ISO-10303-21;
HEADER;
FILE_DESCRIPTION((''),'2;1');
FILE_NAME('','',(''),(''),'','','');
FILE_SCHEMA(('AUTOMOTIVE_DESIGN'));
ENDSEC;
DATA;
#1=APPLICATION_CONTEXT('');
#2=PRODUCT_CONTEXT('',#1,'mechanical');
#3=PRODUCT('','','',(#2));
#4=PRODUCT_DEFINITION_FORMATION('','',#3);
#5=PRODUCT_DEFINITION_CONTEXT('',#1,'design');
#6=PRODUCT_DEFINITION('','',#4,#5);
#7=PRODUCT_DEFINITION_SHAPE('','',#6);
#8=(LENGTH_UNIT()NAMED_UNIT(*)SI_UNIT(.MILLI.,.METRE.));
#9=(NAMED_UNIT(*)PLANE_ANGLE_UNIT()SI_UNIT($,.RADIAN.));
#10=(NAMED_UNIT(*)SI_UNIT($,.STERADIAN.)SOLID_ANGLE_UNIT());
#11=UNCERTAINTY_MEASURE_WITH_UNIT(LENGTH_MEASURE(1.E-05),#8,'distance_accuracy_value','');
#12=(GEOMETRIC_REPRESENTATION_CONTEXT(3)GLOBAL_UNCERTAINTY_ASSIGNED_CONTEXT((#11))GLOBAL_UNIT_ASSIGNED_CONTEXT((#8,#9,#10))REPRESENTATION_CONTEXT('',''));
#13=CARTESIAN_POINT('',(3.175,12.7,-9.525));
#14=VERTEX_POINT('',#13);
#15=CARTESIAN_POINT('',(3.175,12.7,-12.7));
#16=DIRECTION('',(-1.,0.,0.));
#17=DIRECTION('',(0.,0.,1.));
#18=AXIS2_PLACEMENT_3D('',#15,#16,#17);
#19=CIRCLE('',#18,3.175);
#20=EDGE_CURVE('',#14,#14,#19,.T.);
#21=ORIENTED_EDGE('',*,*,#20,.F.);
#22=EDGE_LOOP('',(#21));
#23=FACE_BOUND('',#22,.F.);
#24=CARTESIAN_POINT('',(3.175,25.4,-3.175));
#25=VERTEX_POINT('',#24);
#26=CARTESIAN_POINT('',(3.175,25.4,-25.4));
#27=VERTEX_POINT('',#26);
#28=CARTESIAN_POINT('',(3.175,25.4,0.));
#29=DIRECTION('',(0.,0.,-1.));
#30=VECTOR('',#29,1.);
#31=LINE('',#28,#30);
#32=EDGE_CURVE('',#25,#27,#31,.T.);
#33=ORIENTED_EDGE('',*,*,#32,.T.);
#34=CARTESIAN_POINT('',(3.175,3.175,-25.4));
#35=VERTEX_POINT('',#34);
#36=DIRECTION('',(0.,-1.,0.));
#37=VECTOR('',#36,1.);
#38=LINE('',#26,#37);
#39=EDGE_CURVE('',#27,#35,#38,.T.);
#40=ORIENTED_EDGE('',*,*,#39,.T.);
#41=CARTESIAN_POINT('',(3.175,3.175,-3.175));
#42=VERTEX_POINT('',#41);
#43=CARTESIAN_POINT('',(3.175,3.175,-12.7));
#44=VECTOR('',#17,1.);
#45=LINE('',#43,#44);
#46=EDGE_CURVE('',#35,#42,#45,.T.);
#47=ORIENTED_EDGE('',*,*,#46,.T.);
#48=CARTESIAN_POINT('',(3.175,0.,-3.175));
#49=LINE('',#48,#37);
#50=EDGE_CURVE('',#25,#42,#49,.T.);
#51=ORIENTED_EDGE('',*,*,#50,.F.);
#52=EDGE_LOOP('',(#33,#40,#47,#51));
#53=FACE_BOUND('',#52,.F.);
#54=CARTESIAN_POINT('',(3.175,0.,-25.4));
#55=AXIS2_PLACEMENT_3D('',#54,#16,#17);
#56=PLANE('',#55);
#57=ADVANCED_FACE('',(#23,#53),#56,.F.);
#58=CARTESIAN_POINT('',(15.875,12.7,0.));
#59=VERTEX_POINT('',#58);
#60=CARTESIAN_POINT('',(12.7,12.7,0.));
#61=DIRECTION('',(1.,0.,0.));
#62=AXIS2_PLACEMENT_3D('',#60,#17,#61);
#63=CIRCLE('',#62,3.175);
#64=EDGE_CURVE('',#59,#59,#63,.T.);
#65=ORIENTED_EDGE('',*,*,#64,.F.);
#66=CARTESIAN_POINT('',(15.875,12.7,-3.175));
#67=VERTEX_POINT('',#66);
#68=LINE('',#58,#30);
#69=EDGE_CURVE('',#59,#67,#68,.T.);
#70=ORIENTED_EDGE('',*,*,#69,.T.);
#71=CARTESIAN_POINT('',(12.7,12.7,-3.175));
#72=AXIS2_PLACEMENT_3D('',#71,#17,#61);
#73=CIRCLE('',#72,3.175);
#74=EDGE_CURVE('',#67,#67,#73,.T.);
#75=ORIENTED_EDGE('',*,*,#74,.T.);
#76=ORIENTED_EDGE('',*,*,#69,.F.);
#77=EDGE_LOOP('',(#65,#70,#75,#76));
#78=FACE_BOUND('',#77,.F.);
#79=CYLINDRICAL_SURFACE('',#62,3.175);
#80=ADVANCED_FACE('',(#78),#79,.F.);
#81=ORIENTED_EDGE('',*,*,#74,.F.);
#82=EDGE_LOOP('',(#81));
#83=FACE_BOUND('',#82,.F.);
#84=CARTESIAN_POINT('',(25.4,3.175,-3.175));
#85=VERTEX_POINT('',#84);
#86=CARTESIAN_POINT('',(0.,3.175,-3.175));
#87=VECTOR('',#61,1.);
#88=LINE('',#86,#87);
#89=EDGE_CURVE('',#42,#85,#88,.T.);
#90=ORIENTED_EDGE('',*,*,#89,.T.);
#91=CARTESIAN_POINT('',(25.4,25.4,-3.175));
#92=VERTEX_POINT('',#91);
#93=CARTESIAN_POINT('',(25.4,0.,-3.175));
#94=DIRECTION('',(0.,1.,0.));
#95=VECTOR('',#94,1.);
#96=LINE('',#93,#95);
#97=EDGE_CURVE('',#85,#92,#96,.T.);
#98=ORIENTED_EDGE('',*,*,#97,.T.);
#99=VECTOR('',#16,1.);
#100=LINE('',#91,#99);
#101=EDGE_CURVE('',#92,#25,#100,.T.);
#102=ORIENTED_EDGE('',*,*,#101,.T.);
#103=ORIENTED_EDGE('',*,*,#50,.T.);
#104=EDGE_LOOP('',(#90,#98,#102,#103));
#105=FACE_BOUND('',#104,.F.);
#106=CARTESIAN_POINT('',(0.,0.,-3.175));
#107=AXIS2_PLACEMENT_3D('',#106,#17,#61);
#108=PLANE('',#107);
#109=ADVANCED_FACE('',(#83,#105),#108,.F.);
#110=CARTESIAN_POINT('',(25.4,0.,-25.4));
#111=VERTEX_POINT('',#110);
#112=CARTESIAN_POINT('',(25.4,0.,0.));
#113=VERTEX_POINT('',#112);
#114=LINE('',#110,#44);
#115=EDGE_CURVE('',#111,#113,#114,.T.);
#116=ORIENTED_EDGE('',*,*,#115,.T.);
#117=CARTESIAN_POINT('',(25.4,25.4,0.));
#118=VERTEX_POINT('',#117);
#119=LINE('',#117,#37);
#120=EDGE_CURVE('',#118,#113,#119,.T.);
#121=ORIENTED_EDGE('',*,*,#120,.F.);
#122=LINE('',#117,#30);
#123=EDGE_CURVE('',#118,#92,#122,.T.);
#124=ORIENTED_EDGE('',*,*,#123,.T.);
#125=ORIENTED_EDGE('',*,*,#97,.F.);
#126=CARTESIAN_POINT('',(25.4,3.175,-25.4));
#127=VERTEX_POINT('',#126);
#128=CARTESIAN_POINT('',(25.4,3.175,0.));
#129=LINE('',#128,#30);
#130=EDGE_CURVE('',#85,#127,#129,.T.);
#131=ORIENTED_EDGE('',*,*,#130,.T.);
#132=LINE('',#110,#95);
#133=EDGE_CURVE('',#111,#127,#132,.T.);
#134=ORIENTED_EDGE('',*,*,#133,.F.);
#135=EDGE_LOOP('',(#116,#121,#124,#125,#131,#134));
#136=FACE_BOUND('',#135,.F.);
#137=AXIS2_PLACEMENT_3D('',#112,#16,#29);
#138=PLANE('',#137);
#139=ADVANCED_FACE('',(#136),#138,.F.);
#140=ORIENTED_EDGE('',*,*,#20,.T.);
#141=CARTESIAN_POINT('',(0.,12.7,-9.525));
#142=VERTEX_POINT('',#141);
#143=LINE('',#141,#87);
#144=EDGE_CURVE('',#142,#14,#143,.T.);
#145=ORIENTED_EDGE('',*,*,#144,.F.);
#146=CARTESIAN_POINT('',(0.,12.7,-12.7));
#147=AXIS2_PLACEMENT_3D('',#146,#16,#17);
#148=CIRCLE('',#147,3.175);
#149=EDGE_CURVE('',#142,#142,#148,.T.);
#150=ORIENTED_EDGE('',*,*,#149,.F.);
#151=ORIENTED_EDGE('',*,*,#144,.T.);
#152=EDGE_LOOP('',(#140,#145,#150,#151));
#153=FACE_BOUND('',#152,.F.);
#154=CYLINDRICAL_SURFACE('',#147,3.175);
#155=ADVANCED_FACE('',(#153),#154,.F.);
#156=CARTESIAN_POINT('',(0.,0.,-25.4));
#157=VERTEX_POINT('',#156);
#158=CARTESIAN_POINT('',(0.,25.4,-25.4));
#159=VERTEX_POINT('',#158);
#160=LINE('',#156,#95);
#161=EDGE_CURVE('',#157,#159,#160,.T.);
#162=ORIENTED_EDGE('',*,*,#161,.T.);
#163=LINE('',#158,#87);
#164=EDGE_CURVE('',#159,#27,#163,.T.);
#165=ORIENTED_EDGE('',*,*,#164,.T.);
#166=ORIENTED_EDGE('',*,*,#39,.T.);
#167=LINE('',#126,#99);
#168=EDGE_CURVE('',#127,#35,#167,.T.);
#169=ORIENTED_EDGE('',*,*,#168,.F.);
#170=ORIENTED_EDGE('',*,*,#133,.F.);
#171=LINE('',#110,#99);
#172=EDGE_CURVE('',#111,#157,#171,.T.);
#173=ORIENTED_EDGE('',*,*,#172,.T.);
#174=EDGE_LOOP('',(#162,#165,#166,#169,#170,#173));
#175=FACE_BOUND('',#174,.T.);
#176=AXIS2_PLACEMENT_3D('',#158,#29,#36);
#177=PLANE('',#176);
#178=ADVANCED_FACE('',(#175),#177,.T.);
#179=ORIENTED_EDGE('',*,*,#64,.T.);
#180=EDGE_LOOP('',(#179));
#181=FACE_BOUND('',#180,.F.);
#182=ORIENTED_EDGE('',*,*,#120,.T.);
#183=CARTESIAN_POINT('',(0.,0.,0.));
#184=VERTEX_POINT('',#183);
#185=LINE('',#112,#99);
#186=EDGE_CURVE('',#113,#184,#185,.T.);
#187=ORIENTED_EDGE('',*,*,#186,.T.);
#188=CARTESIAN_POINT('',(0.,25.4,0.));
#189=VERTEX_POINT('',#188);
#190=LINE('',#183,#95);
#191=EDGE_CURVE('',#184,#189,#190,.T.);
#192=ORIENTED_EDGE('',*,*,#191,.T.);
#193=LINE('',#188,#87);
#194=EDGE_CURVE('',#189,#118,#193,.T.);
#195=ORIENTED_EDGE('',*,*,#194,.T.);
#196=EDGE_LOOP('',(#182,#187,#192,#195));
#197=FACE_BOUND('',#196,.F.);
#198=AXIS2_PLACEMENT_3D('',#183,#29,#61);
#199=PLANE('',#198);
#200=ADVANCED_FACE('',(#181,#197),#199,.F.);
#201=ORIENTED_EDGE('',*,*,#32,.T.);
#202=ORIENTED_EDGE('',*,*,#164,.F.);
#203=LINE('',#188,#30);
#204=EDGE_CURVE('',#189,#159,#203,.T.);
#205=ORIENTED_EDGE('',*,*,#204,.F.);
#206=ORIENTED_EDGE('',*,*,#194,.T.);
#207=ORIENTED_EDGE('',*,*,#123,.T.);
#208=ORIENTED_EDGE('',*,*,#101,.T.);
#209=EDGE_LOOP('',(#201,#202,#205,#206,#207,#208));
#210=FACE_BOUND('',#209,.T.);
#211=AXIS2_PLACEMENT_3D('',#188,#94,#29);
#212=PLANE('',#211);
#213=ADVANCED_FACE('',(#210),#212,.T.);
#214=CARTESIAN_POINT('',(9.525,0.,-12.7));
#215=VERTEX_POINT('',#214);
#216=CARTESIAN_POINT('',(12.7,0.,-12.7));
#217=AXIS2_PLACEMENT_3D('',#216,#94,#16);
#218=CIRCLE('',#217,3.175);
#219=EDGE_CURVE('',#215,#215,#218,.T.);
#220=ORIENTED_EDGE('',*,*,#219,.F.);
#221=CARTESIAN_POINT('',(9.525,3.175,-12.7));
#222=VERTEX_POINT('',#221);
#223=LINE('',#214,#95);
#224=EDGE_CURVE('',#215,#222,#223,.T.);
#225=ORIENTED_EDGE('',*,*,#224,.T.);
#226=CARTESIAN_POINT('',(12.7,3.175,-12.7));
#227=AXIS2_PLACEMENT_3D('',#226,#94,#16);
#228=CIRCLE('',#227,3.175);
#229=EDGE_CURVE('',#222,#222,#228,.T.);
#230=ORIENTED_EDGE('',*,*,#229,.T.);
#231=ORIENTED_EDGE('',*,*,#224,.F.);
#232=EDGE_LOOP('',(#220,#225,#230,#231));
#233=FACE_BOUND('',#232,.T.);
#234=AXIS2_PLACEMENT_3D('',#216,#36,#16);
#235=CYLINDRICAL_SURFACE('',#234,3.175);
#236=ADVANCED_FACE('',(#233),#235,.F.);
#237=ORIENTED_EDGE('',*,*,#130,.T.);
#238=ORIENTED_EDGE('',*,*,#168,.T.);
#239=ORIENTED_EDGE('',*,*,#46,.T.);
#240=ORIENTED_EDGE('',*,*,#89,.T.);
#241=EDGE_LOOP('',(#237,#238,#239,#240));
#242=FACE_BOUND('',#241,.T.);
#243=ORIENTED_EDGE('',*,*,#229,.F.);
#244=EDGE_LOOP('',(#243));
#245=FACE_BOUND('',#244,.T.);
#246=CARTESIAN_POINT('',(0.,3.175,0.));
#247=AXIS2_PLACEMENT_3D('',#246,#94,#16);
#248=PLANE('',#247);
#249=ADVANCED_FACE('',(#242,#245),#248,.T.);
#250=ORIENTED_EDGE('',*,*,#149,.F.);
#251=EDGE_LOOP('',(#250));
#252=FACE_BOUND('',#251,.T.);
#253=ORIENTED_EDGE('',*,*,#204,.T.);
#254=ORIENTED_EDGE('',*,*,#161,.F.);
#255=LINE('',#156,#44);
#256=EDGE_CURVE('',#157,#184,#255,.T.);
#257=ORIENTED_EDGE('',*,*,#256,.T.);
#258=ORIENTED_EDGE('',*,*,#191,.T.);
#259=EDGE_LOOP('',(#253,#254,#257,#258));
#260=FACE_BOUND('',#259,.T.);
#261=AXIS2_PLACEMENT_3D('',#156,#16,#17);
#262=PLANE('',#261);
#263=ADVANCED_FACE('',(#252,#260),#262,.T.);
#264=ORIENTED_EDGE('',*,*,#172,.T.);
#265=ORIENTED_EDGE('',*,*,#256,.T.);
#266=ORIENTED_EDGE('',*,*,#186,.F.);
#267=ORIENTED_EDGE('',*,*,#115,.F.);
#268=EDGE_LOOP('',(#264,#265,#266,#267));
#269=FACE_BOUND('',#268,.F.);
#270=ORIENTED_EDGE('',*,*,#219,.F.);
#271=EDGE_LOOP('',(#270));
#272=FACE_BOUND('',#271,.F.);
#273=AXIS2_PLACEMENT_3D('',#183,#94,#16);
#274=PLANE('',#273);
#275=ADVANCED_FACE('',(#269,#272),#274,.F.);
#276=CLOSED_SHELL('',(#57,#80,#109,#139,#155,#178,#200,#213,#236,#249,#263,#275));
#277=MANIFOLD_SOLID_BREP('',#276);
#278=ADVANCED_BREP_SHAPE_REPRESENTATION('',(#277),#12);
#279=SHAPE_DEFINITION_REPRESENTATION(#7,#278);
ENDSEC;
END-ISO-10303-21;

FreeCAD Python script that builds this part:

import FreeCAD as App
import Part
import Sketcher

V = App.Vector
Q = App.Units.Quantity

doc = App.newDocument("Part")
params = doc.addObject("Spreadsheet::Sheet", "Params")
for row, (alias, value) in enumerate([
    ("sketch1_diameter", "0.25 in"),
    ("sketch1_width", "1 in"),
    ("pad1_length", "0.125 in"),
    ("sketch2_diameter", "0.25 in"),
    ("sketch2_width", "1 in"),
    ("pad2_length", "0.125 in"),
    ("sketch3_diameter", "0.25 in"),
    ("sketch3_width", "1 in"),
    ("pad3_length", "0.125 in"),
], start=1):
    params.set(f"A{row}", alias)
    params.set(f"B{row}", "=" + value)
    params.setAlias(f"B{row}", alias)

body = doc.addObject("PartDesign::Body", "Body")

# Sketch on XZ plane
sketch1 = body.newObject("Sketcher::SketchObject", "Sketch")
sketch1.AttachmentSupport = (doc.getObject("XZ_Plane"), [""])
sketch1.MapMode = "FlatFace"
sketch1.addGeometry([
    Part.LineSegment(V(0, -25.4, 0), V(0, 0, 0)),  # 0
    Part.LineSegment(V(0, 0, 0), V(25.4, 0, 0)),  # 1
    Part.LineSegment(V(25.4, 0, 0), V(25.4, -25.4, 0)),  # 2
    Part.LineSegment(V(25.4, -25.4, 0), V(0, -25.4, 0)),  # 3
    Part.Circle(V(12.7, -12.7, 0), V(0, 0, 1), 3.2),  # 4
], False)
sketch1.addConstraint([
    Sketcher.Constraint("Coincident", 0, 2, 1, 1),
    Sketcher.Constraint("Coincident", 1, 2, 2, 1),
    Sketcher.Constraint("Coincident", 2, 2, 3, 1),
    Sketcher.Constraint("Coincident", 3, 2, 0, 1),
    Sketcher.Constraint("Vertical", 0),
    Sketcher.Constraint("Horizontal", 1),
    Sketcher.Constraint("Vertical", 2),
    Sketcher.Constraint("Horizontal", 3),
    Sketcher.Constraint("Coincident", 0, 2, -1, 1),
    Sketcher.Constraint("Equal", 3, 0),
    Sketcher.Constraint("Diameter", 4, Q("0.25 in")),
    Sketcher.Constraint("DistanceX", 1, 1, 1, 2, Q("1 in")),
    Sketcher.Constraint("DistanceX", -1, 1, 4, 3, Q("0.5 in")),
    Sketcher.Constraint("DistanceY", 4, 3, -1, 1, Q("0.5 in")),
])
sketch1.setExpression("Constraints[10]", "Params.sketch1_diameter")
sketch1.setExpression("Constraints[11]", "Params.sketch1_width")
pad1 = body.newObject("PartDesign::Pad", "Pad")
pad1.Profile = sketch1
pad1.setExpression("Length", "Params.pad1_length")
pad1.Reversed = True

# Sketch on XY plane
sketch2 = body.newObject("Sketcher::SketchObject", "Sketch001")
sketch2.AttachmentSupport = (doc.getObject("XY_Plane"), [""])
sketch2.MapMode = "FlatFace"
sketch2.addGeometry([
    Part.LineSegment(V(0, 25.4, 0), V(0, 0, 0)),  # 0
    Part.LineSegment(V(0, 0, 0), V(25.4, 0, 0)),  # 1
    Part.LineSegment(V(25.4, 0, 0), V(25.4, 25.4, 0)),  # 2
    Part.LineSegment(V(25.4, 25.4, 0), V(0, 25.4, 0)),  # 3
    Part.Circle(V(12.7, 12.7, 0), V(0, 0, 1), 3.2),  # 4
], False)
sketch2.addConstraint([
    Sketcher.Constraint("Coincident", 0, 2, 1, 1),
    Sketcher.Constraint("Coincident", 1, 2, 2, 1),
    Sketcher.Constraint("Coincident", 2, 2, 3, 1),
    Sketcher.Constraint("Coincident", 3, 2, 0, 1),
    Sketcher.Constraint("Vertical", 0),
    Sketcher.Constraint("Horizontal", 1),
    Sketcher.Constraint("Vertical", 2),
    Sketcher.Constraint("Horizontal", 3),
    Sketcher.Constraint("Coincident", 0, 2, -1, 1),
    Sketcher.Constraint("Equal", 3, 0),
    Sketcher.Constraint("Diameter", 4, Q("0.25 in")),
    Sketcher.Constraint("DistanceX", 1, 1, 1, 2, Q("1 in")),
    Sketcher.Constraint("DistanceX", -1, 1, 4, 3, Q("0.5 in")),
    Sketcher.Constraint("DistanceY", -1, 1, 4, 3, Q("0.5 in")),
])
sketch2.setExpression("Constraints[10]", "Params.sketch2_diameter")
sketch2.setExpression("Constraints[11]", "Params.sketch2_width")
pad2 = body.newObject("PartDesign::Pad", "Pad001")
pad2.Profile = sketch2
pad2.setExpression("Length", "Params.pad2_length")
pad2.Reversed = True

# Sketch on YZ plane
sketch3 = body.newObject("Sketcher::SketchObject", "Sketch002")
sketch3.AttachmentSupport = (doc.getObject("YZ_Plane"), [""])
sketch3.MapMode = "FlatFace"
sketch3.addGeometry([
    Part.LineSegment(V(25.4, -25.4, 0), V(0, -25.4, 0)),  # 0
    Part.LineSegment(V(0, -25.4, 0), V(0, 0, 0)),  # 1
    Part.LineSegment(V(0, 0, 0), V(25.4, 0, 0)),  # 2
    Part.LineSegment(V(25.4, 0, 0), V(25.4, -25.4, 0)),  # 3
    Part.Circle(V(12.7, -12.7, 0), V(0, 0, 1), 3.2),  # 4
], False)
sketch3.addConstraint([
    Sketcher.Constraint("Coincident", 0, 2, 1, 1),
    Sketcher.Constraint("Coincident", 1, 2, 2, 1),
    Sketcher.Constraint("Coincident", 2, 2, 3, 1),
    Sketcher.Constraint("Coincident", 3, 2, 0, 1),
    Sketcher.Constraint("Horizontal", 0),
    Sketcher.Constraint("Vertical", 1),
    Sketcher.Constraint("Horizontal", 2),
    Sketcher.Constraint("Vertical", 3),
    Sketcher.Constraint("Coincident", 1, 2, -1, 1),
    Sketcher.Constraint("Equal", 2, 1),
    Sketcher.Constraint("Diameter", 4, Q("0.25 in")),
    Sketcher.Constraint("DistanceX", 0, 2, 0, 1, Q("1 in")),
    Sketcher.Constraint("DistanceX", -1, 1, 4, 3, Q("0.5 in")),
    Sketcher.Constraint("DistanceY", 4, 3, -1, 1, Q("0.5 in")),
])
sketch3.setExpression("Constraints[10]", "Params.sketch3_diameter")
sketch3.setExpression("Constraints[11]", "Params.sketch3_width")
pad3 = body.newObject("PartDesign::Pad", "Pad002")
pad3.Profile = sketch3
pad3.setExpression("Length", "Params.pad3_length")

doc.recompute()
